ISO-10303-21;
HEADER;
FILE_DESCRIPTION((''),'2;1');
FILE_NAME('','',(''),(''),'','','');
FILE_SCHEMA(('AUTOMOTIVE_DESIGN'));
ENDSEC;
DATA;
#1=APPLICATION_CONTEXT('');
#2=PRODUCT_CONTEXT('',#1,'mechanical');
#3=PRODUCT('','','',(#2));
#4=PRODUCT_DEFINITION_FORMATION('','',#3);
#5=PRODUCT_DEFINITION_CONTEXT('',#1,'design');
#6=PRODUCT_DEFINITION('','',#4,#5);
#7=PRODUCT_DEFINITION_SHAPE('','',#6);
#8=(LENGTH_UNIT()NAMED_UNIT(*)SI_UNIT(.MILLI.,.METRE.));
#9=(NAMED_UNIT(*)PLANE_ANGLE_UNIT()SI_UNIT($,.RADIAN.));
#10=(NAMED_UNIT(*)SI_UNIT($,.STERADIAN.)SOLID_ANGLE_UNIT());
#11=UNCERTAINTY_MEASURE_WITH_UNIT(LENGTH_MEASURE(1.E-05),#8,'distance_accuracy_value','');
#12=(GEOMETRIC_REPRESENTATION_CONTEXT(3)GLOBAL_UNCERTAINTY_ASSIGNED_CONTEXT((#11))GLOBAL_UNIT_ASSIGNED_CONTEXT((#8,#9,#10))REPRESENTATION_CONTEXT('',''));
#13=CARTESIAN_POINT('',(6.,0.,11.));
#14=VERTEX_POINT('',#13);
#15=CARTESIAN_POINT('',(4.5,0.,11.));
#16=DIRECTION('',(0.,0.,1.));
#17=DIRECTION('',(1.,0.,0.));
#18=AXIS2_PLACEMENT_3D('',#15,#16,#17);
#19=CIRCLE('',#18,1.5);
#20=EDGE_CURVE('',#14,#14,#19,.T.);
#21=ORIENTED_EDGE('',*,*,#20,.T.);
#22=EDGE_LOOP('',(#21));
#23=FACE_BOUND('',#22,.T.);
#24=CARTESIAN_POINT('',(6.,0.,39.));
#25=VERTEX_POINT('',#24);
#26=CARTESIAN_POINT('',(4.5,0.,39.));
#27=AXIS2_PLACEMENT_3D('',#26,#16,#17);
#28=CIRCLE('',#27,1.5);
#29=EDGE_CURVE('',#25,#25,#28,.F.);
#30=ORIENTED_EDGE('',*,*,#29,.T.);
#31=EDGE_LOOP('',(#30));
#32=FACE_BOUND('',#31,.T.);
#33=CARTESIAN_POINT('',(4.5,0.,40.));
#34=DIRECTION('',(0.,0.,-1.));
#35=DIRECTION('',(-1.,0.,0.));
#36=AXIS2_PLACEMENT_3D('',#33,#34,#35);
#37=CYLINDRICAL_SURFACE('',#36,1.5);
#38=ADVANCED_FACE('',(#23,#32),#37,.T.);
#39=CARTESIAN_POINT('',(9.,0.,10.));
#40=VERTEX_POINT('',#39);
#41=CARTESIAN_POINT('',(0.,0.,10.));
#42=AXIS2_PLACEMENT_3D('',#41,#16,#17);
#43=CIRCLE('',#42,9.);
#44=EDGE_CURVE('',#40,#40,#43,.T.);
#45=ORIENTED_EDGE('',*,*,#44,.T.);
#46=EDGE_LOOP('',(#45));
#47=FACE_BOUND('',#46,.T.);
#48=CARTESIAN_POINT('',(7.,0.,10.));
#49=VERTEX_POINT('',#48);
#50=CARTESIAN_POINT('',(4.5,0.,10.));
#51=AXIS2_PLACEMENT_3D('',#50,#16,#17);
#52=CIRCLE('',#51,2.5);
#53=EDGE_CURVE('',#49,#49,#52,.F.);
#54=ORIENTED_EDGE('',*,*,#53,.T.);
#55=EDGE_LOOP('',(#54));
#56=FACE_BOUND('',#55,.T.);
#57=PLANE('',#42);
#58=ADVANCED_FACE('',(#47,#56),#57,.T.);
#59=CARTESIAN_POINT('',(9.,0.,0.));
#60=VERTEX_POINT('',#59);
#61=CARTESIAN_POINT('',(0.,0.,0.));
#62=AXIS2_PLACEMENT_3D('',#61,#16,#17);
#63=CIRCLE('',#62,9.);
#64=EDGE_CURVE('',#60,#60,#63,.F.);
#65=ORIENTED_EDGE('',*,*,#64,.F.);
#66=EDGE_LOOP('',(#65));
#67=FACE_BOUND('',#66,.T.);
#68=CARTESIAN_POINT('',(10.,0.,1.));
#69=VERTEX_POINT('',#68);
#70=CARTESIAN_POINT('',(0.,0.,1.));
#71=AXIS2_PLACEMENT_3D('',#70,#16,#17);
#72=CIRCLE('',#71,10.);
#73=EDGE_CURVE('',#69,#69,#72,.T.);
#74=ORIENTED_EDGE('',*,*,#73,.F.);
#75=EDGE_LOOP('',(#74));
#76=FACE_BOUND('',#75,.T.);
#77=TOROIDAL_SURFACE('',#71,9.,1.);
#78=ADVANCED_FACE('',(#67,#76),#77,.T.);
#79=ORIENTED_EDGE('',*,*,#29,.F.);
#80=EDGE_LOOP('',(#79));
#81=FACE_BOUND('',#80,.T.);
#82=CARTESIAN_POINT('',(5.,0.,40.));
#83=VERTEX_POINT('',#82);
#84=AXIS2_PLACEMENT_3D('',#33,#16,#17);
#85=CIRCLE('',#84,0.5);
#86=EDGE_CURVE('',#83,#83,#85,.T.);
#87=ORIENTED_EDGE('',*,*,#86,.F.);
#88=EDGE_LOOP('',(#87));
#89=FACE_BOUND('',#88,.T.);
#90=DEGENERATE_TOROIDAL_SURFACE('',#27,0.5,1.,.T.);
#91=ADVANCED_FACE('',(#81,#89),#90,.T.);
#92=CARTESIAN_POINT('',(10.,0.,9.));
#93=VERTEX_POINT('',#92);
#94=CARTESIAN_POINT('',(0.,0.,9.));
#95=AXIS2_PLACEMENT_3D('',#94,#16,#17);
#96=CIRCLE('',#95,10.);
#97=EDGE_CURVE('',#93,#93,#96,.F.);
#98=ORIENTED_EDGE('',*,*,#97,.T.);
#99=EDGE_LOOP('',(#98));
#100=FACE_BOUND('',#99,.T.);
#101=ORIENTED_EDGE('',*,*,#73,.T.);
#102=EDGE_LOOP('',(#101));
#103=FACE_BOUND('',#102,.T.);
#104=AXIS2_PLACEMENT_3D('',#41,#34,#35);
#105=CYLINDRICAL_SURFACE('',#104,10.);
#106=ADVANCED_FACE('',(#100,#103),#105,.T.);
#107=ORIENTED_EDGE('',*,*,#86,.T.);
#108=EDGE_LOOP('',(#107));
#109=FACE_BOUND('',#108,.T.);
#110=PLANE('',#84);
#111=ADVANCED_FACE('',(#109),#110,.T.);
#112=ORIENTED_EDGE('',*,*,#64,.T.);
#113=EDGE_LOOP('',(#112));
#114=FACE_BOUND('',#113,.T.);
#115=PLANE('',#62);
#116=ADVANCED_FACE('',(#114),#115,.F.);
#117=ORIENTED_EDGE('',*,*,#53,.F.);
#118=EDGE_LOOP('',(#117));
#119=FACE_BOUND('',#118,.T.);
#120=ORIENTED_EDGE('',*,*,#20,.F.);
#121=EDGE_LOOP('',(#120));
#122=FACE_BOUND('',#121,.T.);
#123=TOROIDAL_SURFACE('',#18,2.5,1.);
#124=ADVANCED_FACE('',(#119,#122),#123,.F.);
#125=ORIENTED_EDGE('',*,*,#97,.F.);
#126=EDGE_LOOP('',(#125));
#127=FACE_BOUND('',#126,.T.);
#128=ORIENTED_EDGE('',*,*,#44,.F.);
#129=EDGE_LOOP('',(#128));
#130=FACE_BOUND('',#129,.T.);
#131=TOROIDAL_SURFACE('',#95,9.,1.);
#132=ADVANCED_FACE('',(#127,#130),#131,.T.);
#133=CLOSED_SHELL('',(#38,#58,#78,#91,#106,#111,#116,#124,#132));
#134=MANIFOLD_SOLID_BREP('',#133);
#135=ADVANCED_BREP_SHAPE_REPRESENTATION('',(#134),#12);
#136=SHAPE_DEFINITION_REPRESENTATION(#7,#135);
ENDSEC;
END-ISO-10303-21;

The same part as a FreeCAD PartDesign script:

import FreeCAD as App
import Part
import Sketcher

V = App.Vector


def edges_at(feature, points):
    """Names of the edges that pass closest to the given points."""
    edges = feature.Shape.Edges
    near = lambda p: min(range(len(edges)), key=lambda i: edges[i].distToShape(Part.Vertex(*p))[0])
    return sorted({f"Edge{near(p) + 1}" for p in points})

doc = App.newDocument("Part")
body = doc.addObject("PartDesign::Body", "Body")

sketch1 = body.newObject("Sketcher::SketchObject", "Sketch")
sketch1.AttachmentSupport = (doc.getObject("XY_Plane"), [""])
sketch1.MapMode = "FlatFace"
sketch1.addGeometry(Part.Circle(V(0, 0, 0), V(0, 0, 1), 10), False)
sketch1.addConstraint(Sketcher.Constraint("Coincident", 0, 3, -1, 1))
sketch1.addConstraint(Sketcher.Constraint("Diameter", 0, 20.0))
pad1 = body.newObject("PartDesign::Pad", "Pad")
pad1.Profile = sketch1
pad1.Length = 10

sketch2 = body.newObject("Sketcher::SketchObject", "Sketch001")
sketch2.AttachmentSupport = (doc.getObject("XY_Plane"), [""])
sketch2.MapMode = "FlatFace"
sketch2.AttachmentOffset = App.Placement(V(0, 0, 10), App.Rotation())
sketch2.addGeometry(Part.Circle(V(4.5, 0, 0), V(0, 0, 1), 1.5), False)
sketch2.addConstraint(Sketcher.Constraint("PointOnObject", 0, 3, -1))
sketch2.addConstraint(Sketcher.Constraint("Diameter", 0, 3.0))
sketch2.addConstraint(Sketcher.Constraint("DistanceX", -1, 1, 0, 3, 4.5))
pad2 = body.newObject("PartDesign::Pad", "Pad001")
pad2.Profile = sketch2
pad2.Length = 30
doc.recompute()

fillet = body.newObject("PartDesign::Fillet", "Fillet")
fillet.Base = (pad2, edges_at(pad2, [
    (-10, 0, 0),
    (-10, 0, 10),
    (3, 0, 10),
    (3, 0, 40),
]))
fillet.Radius = 1

doc.recompute()
